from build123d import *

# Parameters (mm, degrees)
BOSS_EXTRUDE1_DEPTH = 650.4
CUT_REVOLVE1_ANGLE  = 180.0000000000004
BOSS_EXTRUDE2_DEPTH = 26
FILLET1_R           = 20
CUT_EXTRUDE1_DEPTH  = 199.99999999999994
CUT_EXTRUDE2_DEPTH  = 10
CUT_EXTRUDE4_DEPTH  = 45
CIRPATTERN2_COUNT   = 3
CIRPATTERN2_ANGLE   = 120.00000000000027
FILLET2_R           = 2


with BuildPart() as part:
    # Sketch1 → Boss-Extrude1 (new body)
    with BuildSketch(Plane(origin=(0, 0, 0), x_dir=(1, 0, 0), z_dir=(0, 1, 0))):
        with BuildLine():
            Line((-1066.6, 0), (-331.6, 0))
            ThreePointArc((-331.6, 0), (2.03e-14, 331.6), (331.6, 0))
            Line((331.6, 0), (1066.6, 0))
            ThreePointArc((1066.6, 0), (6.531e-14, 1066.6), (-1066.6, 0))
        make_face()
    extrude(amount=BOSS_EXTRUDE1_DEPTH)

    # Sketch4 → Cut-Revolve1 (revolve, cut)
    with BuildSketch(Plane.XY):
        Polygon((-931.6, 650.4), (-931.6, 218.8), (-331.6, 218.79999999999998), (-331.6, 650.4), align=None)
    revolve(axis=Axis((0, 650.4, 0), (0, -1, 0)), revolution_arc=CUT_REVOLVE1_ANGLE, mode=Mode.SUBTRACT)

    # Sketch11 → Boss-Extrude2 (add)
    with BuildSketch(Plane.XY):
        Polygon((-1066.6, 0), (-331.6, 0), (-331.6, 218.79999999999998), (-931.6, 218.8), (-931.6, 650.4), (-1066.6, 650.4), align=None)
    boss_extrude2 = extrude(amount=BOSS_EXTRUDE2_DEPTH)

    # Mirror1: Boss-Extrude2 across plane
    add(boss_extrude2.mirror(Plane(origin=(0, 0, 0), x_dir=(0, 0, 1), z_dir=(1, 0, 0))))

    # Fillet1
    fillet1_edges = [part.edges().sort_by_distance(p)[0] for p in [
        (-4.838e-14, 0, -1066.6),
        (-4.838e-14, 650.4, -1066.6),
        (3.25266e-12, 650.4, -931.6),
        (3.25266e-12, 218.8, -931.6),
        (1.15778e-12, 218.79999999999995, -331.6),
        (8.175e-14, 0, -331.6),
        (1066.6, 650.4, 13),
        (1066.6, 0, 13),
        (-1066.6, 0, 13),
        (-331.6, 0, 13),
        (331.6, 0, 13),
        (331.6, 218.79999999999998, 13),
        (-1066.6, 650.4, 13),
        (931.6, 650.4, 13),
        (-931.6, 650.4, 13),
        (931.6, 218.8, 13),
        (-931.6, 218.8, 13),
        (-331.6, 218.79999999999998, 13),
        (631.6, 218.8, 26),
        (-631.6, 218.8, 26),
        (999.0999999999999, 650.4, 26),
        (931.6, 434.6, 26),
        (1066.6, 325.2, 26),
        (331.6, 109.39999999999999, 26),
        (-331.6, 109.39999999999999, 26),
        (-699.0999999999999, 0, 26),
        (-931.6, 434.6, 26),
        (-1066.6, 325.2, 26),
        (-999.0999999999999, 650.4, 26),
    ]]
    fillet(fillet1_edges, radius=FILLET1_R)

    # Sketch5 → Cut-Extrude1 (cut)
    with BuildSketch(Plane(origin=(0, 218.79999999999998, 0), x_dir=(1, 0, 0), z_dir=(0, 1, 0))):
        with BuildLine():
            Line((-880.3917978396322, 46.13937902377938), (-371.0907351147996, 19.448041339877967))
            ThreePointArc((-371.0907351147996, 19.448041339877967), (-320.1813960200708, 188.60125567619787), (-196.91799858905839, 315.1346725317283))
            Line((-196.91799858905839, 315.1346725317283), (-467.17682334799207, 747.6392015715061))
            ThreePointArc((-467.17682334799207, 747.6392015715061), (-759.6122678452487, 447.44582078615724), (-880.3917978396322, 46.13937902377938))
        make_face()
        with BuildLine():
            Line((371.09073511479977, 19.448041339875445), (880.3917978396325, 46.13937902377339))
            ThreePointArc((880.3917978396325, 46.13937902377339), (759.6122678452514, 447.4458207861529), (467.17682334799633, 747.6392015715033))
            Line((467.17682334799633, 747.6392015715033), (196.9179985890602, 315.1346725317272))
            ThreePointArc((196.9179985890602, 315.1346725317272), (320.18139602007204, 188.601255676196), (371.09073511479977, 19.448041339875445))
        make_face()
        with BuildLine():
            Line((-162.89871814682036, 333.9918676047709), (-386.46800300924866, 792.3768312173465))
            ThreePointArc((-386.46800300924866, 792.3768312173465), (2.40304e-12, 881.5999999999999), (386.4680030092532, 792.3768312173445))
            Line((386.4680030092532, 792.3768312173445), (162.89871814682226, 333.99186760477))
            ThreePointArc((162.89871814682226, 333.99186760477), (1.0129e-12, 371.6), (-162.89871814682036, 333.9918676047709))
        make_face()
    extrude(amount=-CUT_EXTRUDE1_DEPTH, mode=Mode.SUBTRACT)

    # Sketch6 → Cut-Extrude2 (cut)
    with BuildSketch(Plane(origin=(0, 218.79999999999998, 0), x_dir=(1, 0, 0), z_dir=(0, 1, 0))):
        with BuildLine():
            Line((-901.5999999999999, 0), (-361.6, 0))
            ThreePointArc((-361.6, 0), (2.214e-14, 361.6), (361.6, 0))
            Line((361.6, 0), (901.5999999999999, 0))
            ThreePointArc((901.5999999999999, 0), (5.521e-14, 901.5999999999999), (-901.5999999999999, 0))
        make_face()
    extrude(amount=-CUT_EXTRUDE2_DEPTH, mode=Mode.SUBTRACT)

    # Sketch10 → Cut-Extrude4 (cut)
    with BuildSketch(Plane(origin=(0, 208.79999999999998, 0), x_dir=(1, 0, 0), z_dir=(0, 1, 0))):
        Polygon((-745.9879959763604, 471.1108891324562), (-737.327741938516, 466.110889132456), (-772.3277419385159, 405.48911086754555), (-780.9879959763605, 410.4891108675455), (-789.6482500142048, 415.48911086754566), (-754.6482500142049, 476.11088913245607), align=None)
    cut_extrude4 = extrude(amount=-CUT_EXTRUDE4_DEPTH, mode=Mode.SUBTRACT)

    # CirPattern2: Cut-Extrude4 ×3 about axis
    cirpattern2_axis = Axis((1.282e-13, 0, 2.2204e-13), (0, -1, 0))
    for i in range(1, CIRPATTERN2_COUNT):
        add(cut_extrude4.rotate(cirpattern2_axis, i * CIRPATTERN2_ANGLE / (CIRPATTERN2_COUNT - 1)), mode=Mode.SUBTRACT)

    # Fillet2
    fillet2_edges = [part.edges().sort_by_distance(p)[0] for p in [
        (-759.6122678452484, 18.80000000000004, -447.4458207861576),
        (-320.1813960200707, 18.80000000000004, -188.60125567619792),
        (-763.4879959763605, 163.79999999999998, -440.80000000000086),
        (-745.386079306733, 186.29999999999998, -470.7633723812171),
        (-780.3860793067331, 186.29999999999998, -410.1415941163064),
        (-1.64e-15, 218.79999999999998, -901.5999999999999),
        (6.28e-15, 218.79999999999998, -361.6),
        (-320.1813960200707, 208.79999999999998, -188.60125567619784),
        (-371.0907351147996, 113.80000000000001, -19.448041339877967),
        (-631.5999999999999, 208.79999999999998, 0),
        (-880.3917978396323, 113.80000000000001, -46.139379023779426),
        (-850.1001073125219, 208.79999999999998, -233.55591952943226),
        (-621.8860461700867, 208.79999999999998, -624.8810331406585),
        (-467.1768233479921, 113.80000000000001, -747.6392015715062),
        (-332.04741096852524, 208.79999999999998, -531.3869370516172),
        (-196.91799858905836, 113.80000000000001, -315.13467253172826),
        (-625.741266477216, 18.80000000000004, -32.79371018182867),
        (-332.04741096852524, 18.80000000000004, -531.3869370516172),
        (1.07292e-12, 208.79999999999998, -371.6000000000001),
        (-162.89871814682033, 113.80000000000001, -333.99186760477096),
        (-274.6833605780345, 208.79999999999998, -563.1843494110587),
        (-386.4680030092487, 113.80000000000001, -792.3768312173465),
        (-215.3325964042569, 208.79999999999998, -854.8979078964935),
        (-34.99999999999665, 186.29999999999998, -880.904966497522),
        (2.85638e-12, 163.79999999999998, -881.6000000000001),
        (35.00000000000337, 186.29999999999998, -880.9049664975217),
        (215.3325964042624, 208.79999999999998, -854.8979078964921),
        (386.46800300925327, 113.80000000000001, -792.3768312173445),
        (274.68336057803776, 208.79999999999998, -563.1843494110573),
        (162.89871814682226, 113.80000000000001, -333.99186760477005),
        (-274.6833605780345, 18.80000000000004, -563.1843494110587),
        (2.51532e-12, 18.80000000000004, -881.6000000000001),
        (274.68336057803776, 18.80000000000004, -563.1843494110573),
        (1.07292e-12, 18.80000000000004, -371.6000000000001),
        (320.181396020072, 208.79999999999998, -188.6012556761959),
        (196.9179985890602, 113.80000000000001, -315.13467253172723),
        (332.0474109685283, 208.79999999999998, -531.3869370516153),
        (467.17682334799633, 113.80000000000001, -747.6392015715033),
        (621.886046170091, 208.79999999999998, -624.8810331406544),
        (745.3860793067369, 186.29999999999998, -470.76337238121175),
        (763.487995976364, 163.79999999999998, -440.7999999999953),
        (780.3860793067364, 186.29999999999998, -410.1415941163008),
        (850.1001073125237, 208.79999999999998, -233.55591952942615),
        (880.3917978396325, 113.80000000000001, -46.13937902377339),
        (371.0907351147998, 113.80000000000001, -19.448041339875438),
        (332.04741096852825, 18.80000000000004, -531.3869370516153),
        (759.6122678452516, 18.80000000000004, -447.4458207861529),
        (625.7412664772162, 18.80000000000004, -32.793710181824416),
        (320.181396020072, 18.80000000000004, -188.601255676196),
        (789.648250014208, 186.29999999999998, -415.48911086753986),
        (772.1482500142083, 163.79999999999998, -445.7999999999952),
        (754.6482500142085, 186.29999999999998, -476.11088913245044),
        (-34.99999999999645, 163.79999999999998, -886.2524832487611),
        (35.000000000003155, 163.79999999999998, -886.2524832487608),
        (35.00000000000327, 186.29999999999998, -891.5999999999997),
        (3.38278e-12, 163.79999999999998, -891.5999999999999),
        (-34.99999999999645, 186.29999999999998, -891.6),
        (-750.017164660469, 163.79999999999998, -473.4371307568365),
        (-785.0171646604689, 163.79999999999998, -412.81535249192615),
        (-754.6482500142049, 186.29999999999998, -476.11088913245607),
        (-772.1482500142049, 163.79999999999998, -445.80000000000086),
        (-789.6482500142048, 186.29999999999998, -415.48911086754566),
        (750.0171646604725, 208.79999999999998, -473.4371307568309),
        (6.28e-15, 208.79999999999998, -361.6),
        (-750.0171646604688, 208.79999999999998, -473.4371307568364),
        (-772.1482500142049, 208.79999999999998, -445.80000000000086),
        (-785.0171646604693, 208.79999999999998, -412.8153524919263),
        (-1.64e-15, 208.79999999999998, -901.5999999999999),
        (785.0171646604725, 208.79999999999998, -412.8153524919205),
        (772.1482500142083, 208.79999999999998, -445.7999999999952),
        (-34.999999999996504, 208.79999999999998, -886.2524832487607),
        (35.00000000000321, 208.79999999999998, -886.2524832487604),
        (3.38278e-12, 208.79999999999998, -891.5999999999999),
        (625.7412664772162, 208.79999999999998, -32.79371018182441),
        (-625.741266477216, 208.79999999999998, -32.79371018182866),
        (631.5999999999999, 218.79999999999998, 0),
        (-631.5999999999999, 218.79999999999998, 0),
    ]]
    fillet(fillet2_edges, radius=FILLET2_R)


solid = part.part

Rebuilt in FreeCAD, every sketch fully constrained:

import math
import FreeCAD as App
import Part
import Sketcher
Q = App.Units.Quantity


def edges_at(feature, points):
    """Names of the edges that pass closest to the given points."""
    edges = feature.Shape.Edges
    near = lambda p: min(range(len(edges)), key=lambda i: edges[i].distToShape(Part.Vertex(*p))[0])
    return sorted({f"Edge{near(p) + 1}" for p in points})


def add_polygon(sketch, points):
    """Adds a closed chain of lines whose ends are joined by coincident constraints."""
    first, n = sketch.GeometryCount, len(points)
    for a, b in zip(points, points[1:] + points[:1]):
        sketch.addGeometry(Part.LineSegment(App.Vector(*a, 0), App.Vector(*b, 0)), False)
    for i in range(n):
        sketch.addConstraint(Sketcher.Constraint("Coincident", first + i, 2, first + (i + 1) % n, 1))

doc = App.newDocument("Part")
params = doc.addObject("Spreadsheet::Sheet", "Params")
for row, (alias, value) in enumerate([
    ("sketch1_radius", "331.6 mm"),
    ("sketch1_radius2", "1066.6 mm"),
    ("pad1_length", "650.4 mm"),
    ("sketch2_width", "600 mm"),
    ("sketch2_height", "431.6 mm"),
    ("groove_angle", "180 deg"),
    ("sketch3_width", "735 mm"),
    ("sketch3_width2", "600 mm"),
    ("sketch3_height", "218.8 mm"),
    ("sketch3_height2", "431.6 mm"),
    ("pad2_length", "26 mm"),
    ("fillet_radius", "20 mm"),
    ("sketch4_radius", "371.6 mm"),
    ("sketch4_radius2", "881.6 mm"),
    ("pocket1_length", "200 mm"),
    ("sketch5_radius", "361.6 mm"),
    ("sketch5_radius2", "901.6 mm"),
    ("pocket2_length", "10 mm"),
    ("sketch6_length", "20 mm"),
    ("sketch6_length2", "70 mm"),
    ("pocket3_length", "45 mm"),
    ("fillet2_radius", "2 mm"),
], start=1):
    params.set(f"A{row}", alias)
    params.set(f"B{row}", "=" + value)
    params.setAlias(f"B{row}", alias)

body = doc.addObject("PartDesign::Body", "Body")

# Sketch on XZ plane
sketch1 = body.newObject("Sketcher::SketchObject", "Sketch")
sketch1.AttachmentSupport = (doc.getObject("XZ_Plane"), [""])
sketch1.MapMode = "FlatFace"
sketch1.addGeometry(Part.LineSegment(App.Vector(-1066.6, 0, 0), App.Vector(-331.6, 0, 0)), False)
sketch1.addGeometry(Part.ArcOfCircle(Part.Circle(App.Vector(0, 0, 0), App.Vector(0, 0, 1), 331.6), math.radians(180), math.radians(360)), False)
sketch1.addGeometry(Part.LineSegment(App.Vector(331.6, 0, 0), App.Vector(1066.6, 0, 0)), False)
sketch1.addGeometry(Part.ArcOfCircle(Part.Circle(App.Vector(0, 0, 0), App.Vector(0, 0, 1), 1066.6), math.radians(180), math.radians(360)), False)
sketch1.addConstraint(Sketcher.Constraint("Coincident", 0, 2, 1, 1))
sketch1.addConstraint(Sketcher.Constraint("Coincident", 1, 2, 2, 1))
sketch1.addConstraint(Sketcher.Constraint("Coincident", 2, 2, 3, 2))
sketch1.addConstraint(Sketcher.Constraint("Coincident", 3, 1, 0, 1))
sketch1.addConstraint(Sketcher.Constraint("Horizontal", 0))
sketch1.addConstraint(Sketcher.Constraint("Horizontal", 2))
sketch1.addConstraint(Sketcher.Constraint("Coincident", 1, 3, -1, 1))
sketch1.addConstraint(Sketcher.Constraint("Coincident", 3, 3, -1, 1))
sketch1.addConstraint(Sketcher.Constraint("PointOnObject", 0, 2, -1))
sketch1.addConstraint(Sketcher.Constraint("PointOnObject", 1, 2, -1))
sketch1.addConstraint(Sketcher.Constraint("Radius", 1, 331.6))
sketch1.addConstraint(Sketcher.Constraint("Radius", 3, 1066.6))
sketch1.setExpression("Constraints[10]", "Params.sketch1_radius")
sketch1.setExpression("Constraints[11]", "Params.sketch1_radius2")
pad1 = body.newObject("PartDesign::Pad", "Pad")
pad1.Profile = sketch1
pad1.setExpression("Length", "Params.pad1_length")
pad1.Reversed = True

# Sketch on XY plane
sketch2 = body.newObject("Sketcher::SketchObject", "Sketch001")
sketch2.AttachmentSupport = (doc.getObject("XY_Plane"), [""])
sketch2.MapMode = "FlatFace"
add_polygon(sketch2, [(-931.6, 650.4), (-931.6, 218.8), (-331.6, 218.8), (-331.6, 650.4)])  # lines 0-3
sketch2.addConstraint(Sketcher.Constraint("Vertical", 0))
sketch2.addConstraint(Sketcher.Constraint("Horizontal", 1))
sketch2.addConstraint(Sketcher.Constraint("Vertical", 2))
sketch2.addConstraint(Sketcher.Constraint("Horizontal", 3))
sketch2.addConstraint(Sketcher.Constraint("DistanceX", 1, 1, 1, 2, 600.0))
sketch2.addConstraint(Sketcher.Constraint("DistanceY", 0, 2, 0, 1, 431.6))
sketch2.addConstraint(Sketcher.Constraint("DistanceX", 0, 2, -1, 1, 931.6))
sketch2.addConstraint(Sketcher.Constraint("DistanceY", -1, 1, 0, 2, 218.8))
sketch2.setExpression("Constraints[8]", "Params.sketch2_width")
sketch2.setExpression("Constraints[9]", "Params.sketch2_height")
groove = body.newObject("PartDesign::Groove", "Groove")
groove.Profile = sketch2
groove.ReferenceAxis = (sketch2, ["V_Axis"])
groove.setExpression("Angle", "Params.groove_angle")
groove.Reversed = True

# Sketch on XY plane
sketch3 = body.newObject("Sketcher::SketchObject", "Sketch002")
sketch3.AttachmentSupport = (doc.getObject("XY_Plane"), [""])
sketch3.MapMode = "FlatFace"
add_polygon(sketch3, [(-1066.6, 0), (-331.6, 0), (-331.6, 218.8), (-931.6, 218.8), (-931.6, 650.4), (-1066.6, 650.4)])  # lines 0-5
sketch3.addConstraint(Sketcher.Constraint("Horizontal", 0))
sketch3.addConstraint(Sketcher.Constraint("Vertical", 1))
sketch3.addConstraint(Sketcher.Constraint("Horizontal", 2))
sketch3.addConstraint(Sketcher.Constraint("Vertical", 3))
sketch3.addConstraint(Sketcher.Constraint("Horizontal", 4))
sketch3.addConstraint(Sketcher.Constraint("Vertical", 5))
sketch3.addConstraint(Sketcher.Constraint("PointOnObject", 0, 2, -1))
sketch3.addConstraint(Sketcher.Constraint("DistanceX", 0, 1, 0, 2, 735.0))
sketch3.addConstraint(Sketcher.Constraint("DistanceX", 2, 2, 2, 1, 600.0))
sketch3.addConstraint(Sketcher.Constraint("DistanceY", 1, 1, 1, 2, 218.8))
sketch3.addConstraint(Sketcher.Constraint("DistanceY", 3, 1, 3, 2, 431.6))
sketch3.addConstraint(Sketcher.Constraint("DistanceX", 0, 2, -1, 1, 331.6))
sketch3.setExpression("Constraints[13]", "Params.sketch3_width")
sketch3.setExpression("Constraints[14]", "Params.sketch3_width2")
sketch3.setExpression("Constraints[15]", "Params.sketch3_height")
sketch3.setExpression("Constraints[16]", "Params.sketch3_height2")
pad2 = body.newObject("PartDesign::Pad", "Pad001")
pad2.Profile = sketch3
pad2.setExpression("Length", "Params.pad2_length")
doc.recompute()

mirrored = body.newObject("PartDesign::Mirrored", "Mirrored")
mirrored.Originals = [pad2]
mirrored.MirrorPlane = (doc.getObject("YZ_Plane"), [""])
body.Tip = mirrored
doc.recompute()

fillet = body.newObject("PartDesign::Fillet", "Fillet")
fillet.Base = (mirrored, edges_at(mirrored, [
    (0, 0, -1066.6),
    (0, 650.4, -1066.6),
    (0, 650.4, -931.6),
    (0, 218.8, -931.6),
    (0, 218.8, -331.6),
    (0, 0, -331.6),
    (1066.6, 650.4, 13),
    (1066.6, 0, 13),
    (-1066.6, 0, 13),
    (-331.6, 0, 13),
    (331.6, 0, 13),
    (331.6, 218.8, 13),
    (-1066.6, 650.4, 13),
    (931.6, 650.4, 13),
    (-931.6, 650.4, 13),
    (931.6, 218.8, 13),
    (-931.6, 218.8, 13),
    (-331.6, 218.8, 13),
    (631.6, 218.8, 26),
    (-631.6, 218.8, 26),
    (999.1, 650.4, 26),
    (931.6, 434.6, 26),
    (1066.6, 325.2, 26),
    (331.6, 109.4, 26),
    (-331.6, 109.4, 26),
    (-699.1, 0, 26),
    (-931.6, 434.6, 26),
    (-1066.6, 325.2, 26),
    (-999.1, 650.4, 26),
]))
fillet.setExpression("Radius", "Params.fillet_radius")

# Sketch on XZ plane
sketch4 = body.newObject("Sketcher::SketchObject", "Sketch003")
sketch4.AttachmentSupport = (doc.getObject("XZ_Plane"), [""])
sketch4.MapMode = "FlatFace"
sketch4.AttachmentOffset = App.Placement(App.Vector(0, 0, -218.8), App.Rotation())
sketch4.addGeometry(Part.LineSegment(App.Vector(-880.391798, -46.139379, 0), App.Vector(-371.090735, -19.448041, 0)), False)
sketch4.addGeometry(Part.ArcOfCircle(Part.Circle(App.Vector(0, 0, 0), App.Vector(0, 0, 1), 371.6), math.radians(-177), math.radians(-122)), False)
sketch4.addGeometry(Part.LineSegment(App.Vector(-196.917999, -315.134673, 0), App.Vector(-467.176823, -747.639202, 0)), False)
sketch4.addGeometry(Part.ArcOfCircle(Part.Circle(App.Vector(0, 0, 0), App.Vector(0, 0, 1), 881.6), math.radians(-177), math.radians(-122)), False)
sketch4.addGeometry(Part.LineSegment(App.Vector(371.090735, -19.448041, 0), App.Vector(880.391798, -46.139379, 0)), False)
sketch4.addGeometry(Part.ArcOfCircle(Part.Circle(App.Vector(0, 0, 0), App.Vector(0, 0, 1), 881.6), math.radians(-58), math.radians(-3)), False)
sketch4.addGeometry(Part.LineSegment(App.Vector(467.176823, -747.639202, 0), App.Vector(196.917999, -315.134673, 0)), False)
sketch4.addGeometry(Part.ArcOfCircle(Part.Circle(App.Vector(0, 0, 0), App.Vector(0, 0, 1), 371.6), math.radians(-58), math.radians(-3)), False)
sketch4.addGeometry(Part.LineSegment(App.Vector(-386.468003, -792.376831, 0), App.Vector(-162.898718, -333.991868, 0)), False)
sketch4.addGeometry(Part.ArcOfCircle(Part.Circle(App.Vector(0, 0, 0), App.Vector(0, 0, 1), 371.6), math.radians(-116), math.radians(-64)), False)
sketch4.addGeometry(Part.LineSegment(App.Vector(162.898718, -333.991868, 0), App.Vector(386.468003, -792.376831, 0)), False)
sketch4.addGeometry(Part.ArcOfCircle(Part.Circle(App.Vector(0, 0, 0), App.Vector(0, 0, 1), 881.6), math.radians(-116), math.radians(-64)), False)
sketch4.addConstraint(Sketcher.Constraint("Coincident", 0, 2, 1, 1))
sketch4.addConstraint(Sketcher.Constraint("Coincident", 1, 2, 2, 1))
sketch4.addConstraint(Sketcher.Constraint("Coincident", 2, 2, 3, 2))
sketch4.addConstraint(Sketcher.Constraint("Coincident", 3, 1, 0, 1))
sketch4.addConstraint(Sketcher.Constraint("Coincident", 4, 2, 5, 2))
sketch4.addConstraint(Sketcher.Constraint("Coincident", 5, 1, 6, 1))
sketch4.addConstraint(Sketcher.Constraint("Coincident", 6, 2, 7, 1))
sketch4.addConstraint(Sketcher.Constraint("Coincident", 7, 2, 4, 1))
sketch4.addConstraint(Sketcher.Constraint("Coincident", 8, 2, 9, 1))
sketch4.addConstraint(Sketcher.Constraint("Coincident", 9, 2, 10, 1))
sketch4.addConstraint(Sketcher.Constraint("Coincident", 10, 2, 11, 2))
sketch4.addConstraint(Sketcher.Constraint("Coincident", 11, 1, 8, 1))
sketch4.addConstraint(Sketcher.Constraint("Coincident", 1, 3, -1, 1))
sketch4.addConstraint(Sketcher.Constraint("Coincident", 3, 3, -1, 1))
sketch4.addConstraint(Sketcher.Constraint("Coincident", 5, 3, -1, 1))
sketch4.addConstraint(Sketcher.Constraint("Coincident", 7, 3, -1, 1))
sketch4.addConstraint(Sketcher.Constraint("Coincident", 9, 3, -1, 1))
sketch4.addConstraint(Sketcher.Constraint("Coincident", 11, 3, -1, 1))
sketch4.addConstraint(Sketcher.Constraint("Equal", 3, 5))
sketch4.addConstraint(Sketcher.Constraint("Equal", 1, 7))
sketch4.addConstraint(Sketcher.Constraint("Equal", 7, 9))
sketch4.addConstraint(Sketcher.Constraint("Equal", 5, 11))
sketch4.addConstraint(Sketcher.Constraint("Horizontal", 1, 2, 6, 2))
sketch4.addConstraint(Sketcher.Constraint("Horizontal", 0, 2, 7, 2))
sketch4.addConstraint(Sketcher.Constraint("Horizontal", 8, 2, 9, 2))
sketch4.addConstraint(Sketcher.Constraint("Radius", 1, 371.6))
sketch4.addConstraint(Sketcher.Constraint("Radius", 3, 881.6))
sketch4.addConstraint(Sketcher.Constraint("Angle", 0, Q("3 deg")))
sketch4.addConstraint(Sketcher.Constraint("Angle", 2, Q("-122 deg")))
sketch4.addConstraint(Sketcher.Constraint("Angle", 4, Q("-3 deg")))
sketch4.addConstraint(Sketcher.Constraint("Angle", 6, Q("122 deg")))
sketch4.addConstraint(Sketcher.Constraint("Angle", 8, Q("64 deg")))
sketch4.addConstraint(Sketcher.Constraint("Angle", 10, Q("-64 deg")))
sketch4.addConstraint(Sketcher.Constraint("DistanceX", -1, 1, 6, 2, 196.917999))
sketch4.addConstraint(Sketcher.Constraint("DistanceY", 0, 2, -1, 1, 19.448041))
sketch4.addConstraint(Sketcher.Constraint("DistanceX", 8, 2, -1, 1, 162.898718))
sketch4.setExpression("Constraints[25]", "Params.sketch4_radius")
sketch4.setExpression("Constraints[26]", "Params.sketch4_radius2")
pocket1 = body.newObject("PartDesign::Pocket", "Pocket")
pocket1.Profile = sketch4
pocket1.setExpression("Length", "Params.pocket1_length")
pocket1.Reversed = True

# Sketch on XZ plane
sketch5 = body.newObject("Sketcher::SketchObject", "Sketch004")
sketch5.AttachmentSupport = (doc.getObject("XZ_Plane"), [""])
sketch5.MapMode = "FlatFace"
sketch5.AttachmentOffset = App.Placement(App.Vector(0, 0, -218.8), App.Rotation())
sketch5.addGeometry(Part.LineSegment(App.Vector(-901.6, 0, 0), App.Vector(-361.6, 0, 0)), False)
sketch5.addGeometry(Part.ArcOfCircle(Part.Circle(App.Vector(0, 0, 0), App.Vector(0, 0, 1), 361.6), math.radians(180), math.radians(360)), False)
sketch5.addGeometry(Part.LineSegment(App.Vector(361.6, 0, 0), App.Vector(901.6, 0, 0)), False)
sketch5.addGeometry(Part.ArcOfCircle(Part.Circle(App.Vector(0, 0, 0), App.Vector(0, 0, 1), 901.6), math.radians(180), math.radians(360)), False)
sketch5.addConstraint(Sketcher.Constraint("Coincident", 0, 2, 1, 1))
sketch5.addConstraint(Sketcher.Constraint("Coincident", 1, 2, 2, 1))
sketch5.addConstraint(Sketcher.Constraint("Coincident", 2, 2, 3, 2))
sketch5.addConstraint(Sketcher.Constraint("Coincident", 3, 1, 0, 1))
sketch5.addConstraint(Sketcher.Constraint("Horizontal", 0))
sketch5.addConstraint(Sketcher.Constraint("Horizontal", 2))
sketch5.addConstraint(Sketcher.Constraint("Coincident", 1, 3, -1, 1))
sketch5.addConstraint(Sketcher.Constraint("Coincident", 3, 3, -1, 1))
sketch5.addConstraint(Sketcher.Constraint("PointOnObject", 0, 2, -1))
sketch5.addConstraint(Sketcher.Constraint("PointOnObject", 2, 2, -1))
sketch5.addConstraint(Sketcher.Constraint("Radius", 1, 361.6))
sketch5.addConstraint(Sketcher.Constraint("Radius", 3, 901.6))
sketch5.setExpression("Constraints[10]", "Params.sketch5_radius")
sketch5.setExpression("Constraints[11]", "Params.sketch5_radius2")
pocket2 = body.newObject("PartDesign::Pocket", "Pocket001")
pocket2.Profile = sketch5
pocket2.setExpression("Length", "Params.pocket2_length")
pocket2.Reversed = True

# Sketch on XZ plane
sketch6 = body.newObject("Sketcher::SketchObject", "Sketch005")
sketch6.AttachmentSupport = (doc.getObject("XZ_Plane"), [""])
sketch6.MapMode = "FlatFace"
sketch6.AttachmentOffset = App.Placement(App.Vector(0, 0, -208.8), App.Rotation())
add_polygon(sketch6, [(-737.327742, -466.110889), (-754.64825, -476.110889), (-789.64825, -415.489111), (-772.327742, -405.489111)])  # lines 0-3
sketch6.addConstraint(Sketcher.Constraint("Perpendicular", 0, 1))
sketch6.addConstraint(Sketcher.Constraint("Perpendicular", 1, 2))
sketch6.addConstraint(Sketcher.Constraint("Perpendicular", 2, 3))
sketch6.addConstraint(Sketcher.Constraint("Angle", 0, Q("-150 deg")))
sketch6.addConstraint(Sketcher.Constraint("Distance", 0, 20.0))
sketch6.addConstraint(Sketcher.Constraint("Distance", 1, 70.0))
sketch6.addConstraint(Sketcher.Constraint("DistanceX", 0, 2, -1, 1, 754.64825))
sketch6.addConstraint(Sketcher.Constraint("DistanceY", 0, 2, -1, 1, 476.110889))
sketch6.setExpression("Constraints[8]", "Params.sketch6_length")
sketch6.setExpression("Constraints[9]", "Params.sketch6_length2")
pocket3 = body.newObject("PartDesign::Pocket", "Pocket002")
pocket3.Profile = sketch6
pocket3.setExpression("Length", "Params.pocket3_length")
pocket3.Reversed = True
doc.recompute()

polarpattern = body.newObject("PartDesign::PolarPattern", "PolarPattern")
polarpattern.Originals = [pocket3]
polarpattern.Axis = (doc.getObject("Y_Axis"), [""])
polarpattern.Angle = 120
polarpattern.Occurrences = 3
polarpattern.Reversed = True
body.Tip = polarpattern
doc.recompute()

fillet2 = body.newObject("PartDesign::Fillet", "Fillet001")
fillet2.Base = (polarpattern, edges_at(polarpattern, [
    (-759.612, 18.8, -447.446),
    (-320.181, 18.8, -188.601),
    (-763.488, 163.8, -440.8),
    (-745.386, 186.3, -470.763),
    (-780.386, 186.3, -410.142),
    (0, 218.8, -901.6),
    (0, 218.8, -361.6),
    (-320.181, 208.8, -188.601),
    (-371.091, 113.8, -19.448),
    (-631.6, 208.8, 0),
    (-880.392, 113.8, -46.139),
    (-850.1, 208.8, -233.556),
    (-621.886, 208.8, -624.881),
    (-467.177, 113.8, -747.639),
    (-332.047, 208.8, -531.387),
    (-196.918, 113.8, -315.135),
    (-625.741, 18.8, -32.794),
    (-332.047, 18.8, -531.387),
    (0, 208.8, -371.6),
    (-162.899, 113.8, -333.992),
    (-274.683, 208.8, -563.184),
    (-386.468, 113.8, -792.377),
    (-215.333, 208.8, -854.898),
    (-35, 186.3, -880.905),
    (0, 163.8, -881.6),
    (35, 186.3, -880.905),
    (215.333, 208.8, -854.898),
    (386.468, 113.8, -792.377),
    (274.683, 208.8, -563.184),
    (162.899, 113.8, -333.992),
    (-274.683, 18.8, -563.184),
    (0, 18.8, -881.6),
    (274.683, 18.8, -563.184),
    (0, 18.8, -371.6),
    (320.181, 208.8, -188.601),
    (196.918, 113.8, -315.135),
    (332.047, 208.8, -531.387),
    (467.177, 113.8, -747.639),
    (621.886, 208.8, -624.881),
    (745.386, 186.3, -470.763),
    (763.488, 163.8, -440.8),
    (780.386, 186.3, -410.142),
    (850.1, 208.8, -233.556),
    (880.392, 113.8, -46.139),
    (371.091, 113.8, -19.448),
    (332.047, 18.8, -531.387),
    (759.612, 18.8, -447.446),
    (625.741, 18.8, -32.794),
    (320.181, 18.8, -188.601),
    (789.648, 186.3, -415.489),
    (772.148, 163.8, -445.8),
    (754.648, 186.3, -476.111),
    (-35, 163.8, -886.252),
    (35, 163.8, -886.252),
    (35, 186.3, -891.6),
    (0, 163.8, -891.6),
    (-35, 186.3, -891.6),
    (-750.017, 163.8, -473.437),
    (-785.017, 163.8, -412.815),
    (-754.648, 186.3, -476.111),
    (-772.148, 163.8, -445.8),
    (-789.648, 186.3, -415.489),
    (750.017, 208.8, -473.437),
    (0, 208.8, -361.6),
    (-750.017, 208.8, -473.437),
    (-772.148, 208.8, -445.8),
    (-785.017, 208.8, -412.815),
    (0, 208.8, -901.6),
    (785.017, 208.8, -412.815),
    (772.148, 208.8, -445.8),
    (-35, 208.8, -886.252),
    (35, 208.8, -886.252),
    (0, 208.8, -891.6),
    (625.741, 208.8, -32.794),
    (-625.741, 208.8, -32.794),
    (631.6, 218.8, 0),
    (-631.6, 218.8, 0),
]))
fillet2.setExpression("Radius", "Params.fillet2_radius")

doc.recompute()
